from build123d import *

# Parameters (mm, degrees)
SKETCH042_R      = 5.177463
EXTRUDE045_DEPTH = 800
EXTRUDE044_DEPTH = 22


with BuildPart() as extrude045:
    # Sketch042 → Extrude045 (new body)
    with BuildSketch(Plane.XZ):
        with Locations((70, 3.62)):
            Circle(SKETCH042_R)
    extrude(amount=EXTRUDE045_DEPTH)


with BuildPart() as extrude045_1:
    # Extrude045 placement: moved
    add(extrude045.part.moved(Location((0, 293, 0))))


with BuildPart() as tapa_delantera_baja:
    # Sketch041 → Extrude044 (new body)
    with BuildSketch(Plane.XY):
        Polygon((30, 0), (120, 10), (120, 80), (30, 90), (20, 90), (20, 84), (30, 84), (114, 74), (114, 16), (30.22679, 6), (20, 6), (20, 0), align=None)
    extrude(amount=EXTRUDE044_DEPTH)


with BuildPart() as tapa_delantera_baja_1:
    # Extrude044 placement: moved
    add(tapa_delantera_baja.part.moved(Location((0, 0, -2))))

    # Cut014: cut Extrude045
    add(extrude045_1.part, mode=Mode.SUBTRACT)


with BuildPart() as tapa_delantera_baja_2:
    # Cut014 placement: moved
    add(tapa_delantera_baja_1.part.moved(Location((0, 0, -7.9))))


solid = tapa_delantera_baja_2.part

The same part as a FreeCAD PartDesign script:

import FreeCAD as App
import Part
import Sketcher


def add_polygon(sketch, points):
    """Adds a closed chain of lines whose ends are joined by coincident constraints."""
    first, n = sketch.GeometryCount, len(points)
    for a, b in zip(points, points[1:] + points[:1]):
        sketch.addGeometry(Part.LineSegment(App.Vector(*a, 0), App.Vector(*b, 0)), False)
    for i in range(n):
        sketch.addConstraint(Sketcher.Constraint("Coincident", first + i, 2, first + (i + 1) % n, 1))

doc = App.newDocument("Part")
body = doc.addObject("PartDesign::Body", "Body")

sketch1 = body.newObject("Sketcher::SketchObject", "Sketch")
sketch1.AttachmentSupport = (doc.getObject("XZ_Plane"), [""])
sketch1.MapMode = "FlatFace"
sketch1.addGeometry(Part.Circle(App.Vector(70, 3.62, 0), App.Vector(0, 0, 1), 5.177463), False)
sketch1.addConstraint(Sketcher.Constraint("DistanceX", -1, 1, 0, 3, 70.0))
sketch1.addConstraint(Sketcher.Constraint("DistanceY", -1, 1, 0, 3, 3.62))
sketch1.addConstraint(Sketcher.Constraint("Diameter", 0, 10.354926))
pad1 = body.newObject("PartDesign::Pad", "Pad")
pad1.Profile = sketch1
pad1.Length = 800
body2 = doc.addObject("PartDesign::Body", "Body001")
doc.recompute()

body.Placement = App.Placement(App.Vector(0, 293, 0), App.Rotation(App.Vector(0, 0, 1), 0))
boolean = body2.newObject("PartDesign::Boolean", "Boolean")
boolean.Type = "Fuse"
boolean.addObjects([body])
body3 = doc.addObject("PartDesign::Body", "Body002")

sketch2 = body3.newObject("Sketcher::SketchObject", "Sketch001")
sketch2.AttachmentSupport = (doc.getObject("XY_Plane002"), [""])
sketch2.MapMode = "FlatFace"
add_polygon(sketch2, [(30, 0), (120, 10), (120, 80), (30, 90), (20, 90), (20, 84), (30, 84), (114, 74), (114, 16), (30.22679, 6), (20, 6), (20, 0)])
sketch2.addConstraint(Sketcher.Constraint("Vertical", 1))
sketch2.addConstraint(Sketcher.Constraint("Horizontal", 3))
sketch2.addConstraint(Sketcher.Constraint("Vertical", 4))
sketch2.addConstraint(Sketcher.Constraint("Horizontal", 5))
sketch2.addConstraint(Sketcher.Constraint("Vertical", 7))
sketch2.addConstraint(Sketcher.Constraint("Horizontal", 9))
sketch2.addConstraint(Sketcher.Constraint("Vertical", 10))
sketch2.addConstraint(Sketcher.Constraint("Horizontal", 11))
sketch2.addConstraint(Sketcher.Constraint("PointOnObject", 10, 2, -1))
sketch2.addConstraint(Sketcher.Constraint("Vertical", 2, 2, 5, 2))
sketch2.addConstraint(Sketcher.Constraint("Vertical", 4, 2, 9, 2))
sketch2.addConstraint(Sketcher.Constraint("Vertical", 5, 2, 11, 2))
sketch2.addConstraint(Sketcher.Constraint("Equal", 4, 10))
sketch2.addConstraint(Sketcher.Constraint("Equal", 0, 2))
sketch2.addConstraint(Sketcher.Constraint("DistanceX", 3, 2, 3, 1, 10.0))
sketch2.addConstraint(Sketcher.Constraint("DistanceY", 1, 1, 1, 2, 70.0))
sketch2.addConstraint(Sketcher.Constraint("DistanceY", 4, 2, 4, 1, 6.0))
sketch2.addConstraint(Sketcher.Constraint("DistanceY", 7, 2, 7, 1, 58.0))
sketch2.addConstraint(Sketcher.Constraint("DistanceX", -1, 1, 0, 2, 120.0))
sketch2.addConstraint(Sketcher.Constraint("DistanceY", -1, 1, 0, 2, 10.0))
sketch2.addConstraint(Sketcher.Constraint("DistanceX", -1, 1, 2, 2, 30.0))
sketch2.addConstraint(Sketcher.Constraint("DistanceX", -1, 1, 6, 2, 114.0))
sketch2.addConstraint(Sketcher.Constraint("DistanceY", -1, 1, 6, 2, 74.0))
sketch2.addConstraint(Sketcher.Constraint("DistanceX", 9, 2, 9, 1, 10.22679))
pad2 = body3.newObject("PartDesign::Pad", "Pad001")
pad2.Profile = sketch2
pad2.Length = 22
body4 = doc.addObject("PartDesign::Body", "Body003")
doc.recompute()

body3.Placement = App.Placement(App.Vector(0, 0, -2), App.Rotation(App.Vector(0, 0, 1), 0))
boolean2 = body4.newObject("PartDesign::Boolean", "Boolean001")
boolean2.Type = "Fuse"
boolean2.addObjects([body3])
doc.recompute()

boolean3 = body4.newObject("PartDesign::Boolean", "Boolean002")
boolean3.Type = "Cut"
boolean3.addObjects([body2])
body5 = doc.addObject("PartDesign::Body", "Body004")
doc.recompute()

body4.Placement = App.Placement(App.Vector(0, 0, -7.9), App.Rotation(App.Vector(0, 0, 1), 0))
boolean4 = body5.newObject("PartDesign::Boolean", "Boolean003")
boolean4.Type = "Fuse"
boolean4.addObjects([body4])

doc.recompute()
